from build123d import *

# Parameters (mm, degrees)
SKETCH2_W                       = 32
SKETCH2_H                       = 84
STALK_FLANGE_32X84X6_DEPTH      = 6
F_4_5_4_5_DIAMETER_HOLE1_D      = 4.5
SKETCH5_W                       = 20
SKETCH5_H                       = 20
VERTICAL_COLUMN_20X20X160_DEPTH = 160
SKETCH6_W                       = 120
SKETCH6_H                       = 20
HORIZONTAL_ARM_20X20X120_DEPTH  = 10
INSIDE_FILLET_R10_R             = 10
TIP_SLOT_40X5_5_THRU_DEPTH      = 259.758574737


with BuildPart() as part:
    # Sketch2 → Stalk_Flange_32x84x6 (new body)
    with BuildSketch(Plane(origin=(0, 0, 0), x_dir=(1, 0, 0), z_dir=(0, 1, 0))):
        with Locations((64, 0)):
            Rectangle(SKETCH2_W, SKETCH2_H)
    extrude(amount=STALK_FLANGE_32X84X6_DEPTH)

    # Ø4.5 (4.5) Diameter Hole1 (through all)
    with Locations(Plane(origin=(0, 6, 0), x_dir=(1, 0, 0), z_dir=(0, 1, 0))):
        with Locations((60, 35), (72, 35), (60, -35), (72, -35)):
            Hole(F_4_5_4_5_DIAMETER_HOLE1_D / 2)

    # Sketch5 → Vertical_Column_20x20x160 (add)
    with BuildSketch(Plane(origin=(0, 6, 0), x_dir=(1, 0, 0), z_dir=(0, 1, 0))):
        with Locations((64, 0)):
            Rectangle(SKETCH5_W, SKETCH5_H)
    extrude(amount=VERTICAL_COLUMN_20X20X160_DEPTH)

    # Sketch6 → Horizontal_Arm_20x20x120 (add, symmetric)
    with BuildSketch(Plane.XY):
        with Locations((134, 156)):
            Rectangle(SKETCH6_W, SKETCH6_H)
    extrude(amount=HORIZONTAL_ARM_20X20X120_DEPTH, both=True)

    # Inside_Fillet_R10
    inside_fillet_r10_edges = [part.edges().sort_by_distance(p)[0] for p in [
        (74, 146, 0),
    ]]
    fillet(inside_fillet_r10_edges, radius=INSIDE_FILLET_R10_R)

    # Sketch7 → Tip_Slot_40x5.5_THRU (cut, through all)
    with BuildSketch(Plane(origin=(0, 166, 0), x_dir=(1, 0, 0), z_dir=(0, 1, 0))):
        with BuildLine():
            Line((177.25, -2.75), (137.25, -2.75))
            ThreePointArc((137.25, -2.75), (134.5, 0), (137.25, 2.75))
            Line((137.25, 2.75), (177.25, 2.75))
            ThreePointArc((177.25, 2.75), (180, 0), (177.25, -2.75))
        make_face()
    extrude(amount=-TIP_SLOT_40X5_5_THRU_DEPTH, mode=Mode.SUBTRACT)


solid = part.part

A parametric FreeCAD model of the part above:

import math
import FreeCAD as App
import Part
import Sketcher

V = App.Vector
Q = App.Units.Quantity


def edges_at(feature, points):
    """Names of the edges that pass closest to the given points."""
    edges = feature.Shape.Edges
    near = lambda p: min(range(len(edges)), key=lambda i: edges[i].distToShape(Part.Vertex(*p))[0])
    return sorted({f"Edge{near(p) + 1}" for p in points})


def add_polygon(sketch, points):
    """Adds a closed chain of lines whose ends are joined by coincident constraints."""
    first, n = sketch.GeometryCount, len(points)
    for a, b in zip(points, points[1:] + points[:1]):
        sketch.addGeometry(Part.LineSegment(App.Vector(*a, 0), App.Vector(*b, 0)), False)
    for i in range(n):
        sketch.addConstraint(Sketcher.Constraint("Coincident", first + i, 2, first + (i + 1) % n, 1))

doc = App.newDocument("Part")
body = doc.addObject("PartDesign::Body", "Body")

# Sketch on XZ plane
sketch1 = body.newObject("Sketcher::SketchObject", "Sketch")
sketch1.AttachmentSupport = (doc.getObject("XZ_Plane"), [""])
sketch1.MapMode = "FlatFace"
add_polygon(sketch1, [(48, -42), (48, 42), (80, 42), (80, -42)])  # lines 0-3
sketch1.addConstraint(Sketcher.Constraint("Vertical", 0))
sketch1.addConstraint(Sketcher.Constraint("Horizontal", 1))
sketch1.addConstraint(Sketcher.Constraint("Vertical", 2))
sketch1.addConstraint(Sketcher.Constraint("Horizontal", 3))
sketch1.addConstraint(Sketcher.Constraint("DistanceX", 1, 1, 1, 2, Q("32 mm")))
sketch1.addConstraint(Sketcher.Constraint("DistanceY", 0, 1, 0, 2, Q("84 mm")))
sketch1.addConstraint(Sketcher.Constraint("DistanceX", -1, 1, 0, 2, Q("48 mm")))
sketch1.addConstraint(Sketcher.Constraint("DistanceY", -1, 1, 0, 2, Q("42 mm")))
pad1 = body.newObject("PartDesign::Pad", "Pad")
pad1.Profile = sketch1
pad1.Length = 6
pad1.Reversed = True

# Sketch on XZ plane
sketch2 = body.newObject("Sketcher::SketchObject", "Sketch001")
sketch2.AttachmentSupport = (doc.getObject("XZ_Plane"), [""])
sketch2.MapMode = "FlatFace"
sketch2.AttachmentOffset = App.Placement(V(0, 0, -6), App.Rotation())
sketch2.addGeometry(Part.Circle(V(60, -35, 0), V(0, 0, 1), 2.2), False)
sketch2.addGeometry(Part.Circle(V(72, -35, 0), V(0, 0, 1), 2.2), False)
sketch2.addGeometry(Part.Circle(V(60, 35, 0), V(0, 0, 1), 2.2), False)
sketch2.addGeometry(Part.Circle(V(72, 35, 0), V(0, 0, 1), 2.2), False)
sketch2.addConstraint(Sketcher.Constraint("Equal", 0, 1))
sketch2.addConstraint(Sketcher.Constraint("Equal", 1, 2))
sketch2.addConstraint(Sketcher.Constraint("Equal", 2, 3))
sketch2.addConstraint(Sketcher.Constraint("Symmetric", 0, 3, 2, 3, -1))
sketch2.addConstraint(Sketcher.Constraint("Symmetric", 1, 3, 3, 3, -1))
sketch2.addConstraint(Sketcher.Constraint("Horizontal", 0, 3, 1, 3))
sketch2.addConstraint(Sketcher.Constraint("Diameter", 0, Q("4.5 mm")))
sketch2.addConstraint(Sketcher.Constraint("DistanceX", -1, 1, 0, 3, Q("60 mm")))
sketch2.addConstraint(Sketcher.Constraint("DistanceY", 0, 3, -1, 1, Q("35 mm")))
sketch2.addConstraint(Sketcher.Constraint("DistanceX", -1, 1, 1, 3, Q("72 mm")))
doc.recompute()
hole = body.newObject("PartDesign::Hole", "Hole")
hole.Profile = sketch2
hole.ThreadType = "None"
hole.Diameter = 4.5
hole.DepthType = "ThroughAll"
hole.Reversed = True

# Sketch on XZ plane
sketch3 = body.newObject("Sketcher::SketchObject", "Sketch002")
sketch3.AttachmentSupport = (doc.getObject("XZ_Plane"), [""])
sketch3.MapMode = "FlatFace"
sketch3.AttachmentOffset = App.Placement(V(0, 0, -6), App.Rotation())
add_polygon(sketch3, [(54, -10), (54, 10), (74, 10), (74, -10)])  # lines 0-3
sketch3.addConstraint(Sketcher.Constraint("Vertical", 0))
sketch3.addConstraint(Sketcher.Constraint("Horizontal", 1))
sketch3.addConstraint(Sketcher.Constraint("Vertical", 2))
sketch3.addConstraint(Sketcher.Constraint("Horizontal", 3))
sketch3.addConstraint(Sketcher.Constraint("Equal", 3, 0))
sketch3.addConstraint(Sketcher.Constraint("DistanceX", 1, 1, 1, 2, Q("20 mm")))
sketch3.addConstraint(Sketcher.Constraint("DistanceX", -1, 1, 0, 2, Q("54 mm")))
sketch3.addConstraint(Sketcher.Constraint("DistanceY", -1, 1, 0, 2, Q("10 mm")))
pad2 = body.newObject("PartDesign::Pad", "Pad001")
pad2.Profile = sketch3
pad2.Length = 160
pad2.Reversed = True

# Sketch on XY plane
sketch4 = body.newObject("Sketcher::SketchObject", "Sketch003")
sketch4.AttachmentSupport = (doc.getObject("XY_Plane"), [""])
sketch4.MapMode = "FlatFace"
add_polygon(sketch4, [(74, 166), (74, 146), (194, 146), (194, 166)])  # lines 0-3
sketch4.addConstraint(Sketcher.Constraint("Vertical", 0))
sketch4.addConstraint(Sketcher.Constraint("Horizontal", 1))
sketch4.addConstraint(Sketcher.Constraint("Vertical", 2))
sketch4.addConstraint(Sketcher.Constraint("Horizontal", 3))
sketch4.addConstraint(Sketcher.Constraint("DistanceX", 1, 1, 1, 2, Q("120 mm")))
sketch4.addConstraint(Sketcher.Constraint("DistanceY", 0, 2, 0, 1, Q("20 mm")))
sketch4.addConstraint(Sketcher.Constraint("DistanceX", -1, 1, 0, 2, Q("74 mm")))
sketch4.addConstraint(Sketcher.Constraint("DistanceY", -1, 1, 0, 2, Q("146 mm")))
pad3 = body.newObject("PartDesign::Pad", "Pad002")
pad3.Profile = sketch4
pad3.Length = 20
pad3.Midplane = True
doc.recompute()

fillet = body.newObject("PartDesign::Fillet", "Fillet")
fillet.Base = (pad3, edges_at(pad3, [(74, 146, 0)]))
fillet.Radius = 10

# Sketch on XZ plane
sketch5 = body.newObject("Sketcher::SketchObject", "Sketch004")
sketch5.AttachmentSupport = (doc.getObject("XZ_Plane"), [""])
sketch5.MapMode = "FlatFace"
sketch5.AttachmentOffset = App.Placement(V(0, 0, -166), App.Rotation())
sketch5.addGeometry(Part.LineSegment(V(137.2, 2.8, 0), V(177.2, 2.8, 0)), False)
sketch5.addGeometry(Part.ArcOfCircle(Part.Circle(V(177.2, 0, 0), V(0, 0, 1), 2.8), math.radians(-90), math.radians(90)), False)
sketch5.addGeometry(Part.LineSegment(V(177.2, -2.8, 0), V(137.2, -2.8, 0)), False)
sketch5.addGeometry(Part.ArcOfCircle(Part.Circle(V(137.2, 0, 0), V(0, 0, 1), 2.8), math.radians(90), math.radians(270)), False)
sketch5.addConstraint(Sketcher.Constraint("Tangent", 0, 2, 1, 2))
sketch5.addConstraint(Sketcher.Constraint("Tangent", 1, 1, 2, 1))
sketch5.addConstraint(Sketcher.Constraint("Tangent", 2, 2, 3, 2))
sketch5.addConstraint(Sketcher.Constraint("Tangent", 3, 1, 0, 1))
sketch5.addConstraint(Sketcher.Constraint("Horizontal", 0))
sketch5.addConstraint(Sketcher.Constraint("Horizontal", 2))
sketch5.addConstraint(Sketcher.Constraint("PointOnObject", 1, 3, -1))
sketch5.addConstraint(Sketcher.Constraint("DistanceX", 0, 1, 0, 2, Q("40 mm")))
sketch5.addConstraint(Sketcher.Constraint("Radius", 1, Q("2.75 mm")))
sketch5.addConstraint(Sketcher.Constraint("DistanceX", -1, 1, 1, 3, Q("177.25 mm")))
pocket1 = body.newObject("PartDesign::Pocket", "Pocket")
pocket1.Profile = sketch5
pocket1.Type = "ThroughAll"
pocket1.Reversed = True

doc.recompute()
